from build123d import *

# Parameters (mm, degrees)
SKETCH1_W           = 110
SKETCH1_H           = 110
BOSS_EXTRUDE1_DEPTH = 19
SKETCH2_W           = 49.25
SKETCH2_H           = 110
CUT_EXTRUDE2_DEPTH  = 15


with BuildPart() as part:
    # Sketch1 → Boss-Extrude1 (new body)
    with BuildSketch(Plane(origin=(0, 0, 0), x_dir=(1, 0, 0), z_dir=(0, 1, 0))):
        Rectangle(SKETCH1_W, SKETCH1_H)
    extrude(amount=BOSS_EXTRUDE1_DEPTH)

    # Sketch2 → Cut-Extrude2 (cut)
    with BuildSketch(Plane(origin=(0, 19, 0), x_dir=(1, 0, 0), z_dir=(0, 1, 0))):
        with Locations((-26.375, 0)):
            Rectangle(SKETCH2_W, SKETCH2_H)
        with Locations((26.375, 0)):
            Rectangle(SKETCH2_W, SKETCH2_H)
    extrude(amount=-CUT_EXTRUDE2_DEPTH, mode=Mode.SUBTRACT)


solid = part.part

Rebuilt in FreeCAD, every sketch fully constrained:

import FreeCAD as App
import Part
import Sketcher

V = App.Vector
Q = App.Units.Quantity

doc = App.newDocument("Part")
params = doc.addObject("Spreadsheet::Sheet", "Params")
for row, (alias, value) in enumerate([
    ("sketch1_width", "110 mm"),
    ("pad1_length", "19 mm"),
    ("sketch2_height", "110 mm"),
    ("sketch2_width", "49.25 mm"),
    ("pocket1_length", "15 mm"),
], start=1):
    params.set(f"A{row}", alias)
    params.set(f"B{row}", "=" + value)
    params.setAlias(f"B{row}", alias)

body = doc.addObject("PartDesign::Body", "Body")

# Sketch on XZ plane
sketch1 = doc.addObject("Sketcher::SketchObject", "Sketch")
body.addObject(sketch1)
sketch1.AttachmentSupport = (doc.XZ_Plane, [""])
sketch1.MapMode = "FlatFace"
sketch1.addGeometry([
    Part.LineSegment(V(-55, -55, 0), V(-55, 55, 0)),
    Part.LineSegment(V(-55, 55, 0), V(55, 55, 0)),
    Part.LineSegment(V(55, 55, 0), V(55, -55, 0)),
    Part.LineSegment(V(55, -55, 0), V(-55, -55, 0)),
], False)
sketch1.addConstraint([
    Sketcher.Constraint("Coincident", 0, 2, 1, 1),
    Sketcher.Constraint("Coincident", 1, 2, 2, 1),
    Sketcher.Constraint("Coincident", 2, 2, 3, 1),
    Sketcher.Constraint("Coincident", 3, 2, 0, 1),
    Sketcher.Constraint("Vertical", 0),
    Sketcher.Constraint("Horizontal", 1),
    Sketcher.Constraint("Vertical", 2),
    Sketcher.Constraint("Horizontal", 3),
    Sketcher.Constraint("Symmetric", 0, 2, 2, 2, -1, 1),
    Sketcher.Constraint("Equal", 3, 0),
    Sketcher.Constraint("DistanceX", 1, 1, 1, 2, Q("110 mm")),
])
sketch1.setExpression("Constraints[10]", "Params.sketch1_width")
pad1 = doc.addObject("PartDesign::Pad", "Pad")
body.addObject(pad1)
pad1.Profile = sketch1
pad1.setExpression("Length", "Params.pad1_length")
pad1.Reversed = True

# Sketch on XZ plane
sketch2 = doc.addObject("Sketcher::SketchObject", "Sketch001")
body.addObject(sketch2)
sketch2.AttachmentSupport = (doc.XZ_Plane, [""])
sketch2.MapMode = "FlatFace"
sketch2.AttachmentOffset = App.Placement(V(0, 0, -19), App.Rotation())
sketch2.addGeometry([
    Part.LineSegment(V(-51, -55, 0), V(-51, 55, 0)),  # 0
    Part.LineSegment(V(-51, 55, 0), V(-2, 55, 0)),  # 1
    Part.LineSegment(V(-2, 55, 0), V(-2, -55, 0)),  # 2
    Part.LineSegment(V(-2, -55, 0), V(-51, -55, 0)),  # 3
    Part.LineSegment(V(2, -55, 0), V(2, 55, 0)),  # 4
    Part.LineSegment(V(2, 55, 0), V(51, 55, 0)),  # 5
    Part.LineSegment(V(51, 55, 0), V(51, -55, 0)),  # 6
    Part.LineSegment(V(51, -55, 0), V(2, -55, 0)),  # 7
], False)
sketch2.addConstraint([
    Sketcher.Constraint("Coincident", 0, 2, 1, 1),
    Sketcher.Constraint("Coincident", 1, 2, 2, 1),
    Sketcher.Constraint("Coincident", 2, 2, 3, 1),
    Sketcher.Constraint("Coincident", 3, 2, 0, 1),
    Sketcher.Constraint("Coincident", 4, 2, 5, 1),
    Sketcher.Constraint("Coincident", 5, 2, 6, 1),
    Sketcher.Constraint("Coincident", 6, 2, 7, 1),
    Sketcher.Constraint("Coincident", 7, 2, 4, 1),
    Sketcher.Constraint("Vertical", 0),
    Sketcher.Constraint("Horizontal", 1),
    Sketcher.Constraint("Vertical", 2),
    Sketcher.Constraint("Horizontal", 3),
    Sketcher.Constraint("Vertical", 4),
    Sketcher.Constraint("Horizontal", 5),
    Sketcher.Constraint("Vertical", 6),
    Sketcher.Constraint("Horizontal", 7),
    Sketcher.Constraint("Symmetric", 2, 2, 4, 2, -1, 1),
    Sketcher.Constraint("Symmetric", 0, 2, 6, 2, -1, 1),
    Sketcher.Constraint("Horizontal", 1, 2, 4, 2),
    Sketcher.Constraint("DistanceY", 0, 1, 0, 2, Q("110 mm")),
    Sketcher.Constraint("DistanceX", 0, 2, -1, 1, Q("51 mm")),
    Sketcher.Constraint("DistanceX", 1, 1, 1, 2, Q("49.25 mm")),
])
sketch2.setExpression("Constraints[19]", "Params.sketch2_height")
sketch2.setExpression("Constraints[21]", "Params.sketch2_width")
pocket1 = doc.addObject("PartDesign::Pocket", "Pocket")
body.addObject(pocket1)
pocket1.Profile = sketch2
pocket1.setExpression("Length", "Params.pocket1_length")
pocket1.Reversed = True

doc.recompute()
